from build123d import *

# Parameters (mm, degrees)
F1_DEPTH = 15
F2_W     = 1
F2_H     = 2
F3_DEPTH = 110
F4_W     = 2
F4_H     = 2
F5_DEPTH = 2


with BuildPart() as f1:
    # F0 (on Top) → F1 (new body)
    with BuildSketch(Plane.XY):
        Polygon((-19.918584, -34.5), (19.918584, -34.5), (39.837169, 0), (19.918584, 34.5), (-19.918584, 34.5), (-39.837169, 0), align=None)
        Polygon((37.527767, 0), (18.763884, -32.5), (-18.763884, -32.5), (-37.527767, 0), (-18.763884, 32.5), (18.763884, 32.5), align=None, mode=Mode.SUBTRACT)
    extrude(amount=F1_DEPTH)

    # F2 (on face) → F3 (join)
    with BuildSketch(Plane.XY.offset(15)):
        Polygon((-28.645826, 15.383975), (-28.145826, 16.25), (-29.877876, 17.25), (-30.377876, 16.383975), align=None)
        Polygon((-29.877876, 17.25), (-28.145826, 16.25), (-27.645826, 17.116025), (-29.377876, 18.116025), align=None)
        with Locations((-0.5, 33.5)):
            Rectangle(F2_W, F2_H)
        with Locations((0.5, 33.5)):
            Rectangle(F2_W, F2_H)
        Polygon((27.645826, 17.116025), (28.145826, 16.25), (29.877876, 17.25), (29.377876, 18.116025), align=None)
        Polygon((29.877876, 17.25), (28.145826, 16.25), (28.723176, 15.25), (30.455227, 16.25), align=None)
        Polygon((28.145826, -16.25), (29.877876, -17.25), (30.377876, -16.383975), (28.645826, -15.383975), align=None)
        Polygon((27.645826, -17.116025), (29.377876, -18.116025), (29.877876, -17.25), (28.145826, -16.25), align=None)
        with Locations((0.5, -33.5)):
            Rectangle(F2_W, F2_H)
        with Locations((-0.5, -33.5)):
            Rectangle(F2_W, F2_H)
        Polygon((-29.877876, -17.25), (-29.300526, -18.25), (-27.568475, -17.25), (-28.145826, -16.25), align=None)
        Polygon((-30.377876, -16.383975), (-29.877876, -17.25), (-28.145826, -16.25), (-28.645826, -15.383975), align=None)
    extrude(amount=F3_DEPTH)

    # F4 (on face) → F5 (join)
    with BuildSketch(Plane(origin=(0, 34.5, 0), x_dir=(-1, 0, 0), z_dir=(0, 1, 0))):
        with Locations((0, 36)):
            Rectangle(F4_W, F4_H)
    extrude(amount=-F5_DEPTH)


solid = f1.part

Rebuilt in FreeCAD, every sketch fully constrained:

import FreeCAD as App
import Part
import Sketcher
from FreeCAD import Vector
Q = App.Units.Quantity

doc = App.newDocument("Part")
body = doc.addObject("PartDesign::Body", "Body")

sketch1 = body.newObject("Sketcher::SketchObject", "Sketch")
sketch1.AttachmentSupport = (doc.getObject("XY_Plane"), [""])
sketch1.MapMode = "FlatFace"
sketch1.addGeometry(Part.LineSegment(Vector(-19.918584, -34.5, 0), Vector(19.918584, -34.5, 0)), False)
sketch1.addGeometry(Part.LineSegment(Vector(19.918584, -34.5, 0), Vector(39.837169, 0, 0)), False)
sketch1.addGeometry(Part.LineSegment(Vector(39.837169, 0, 0), Vector(19.918584, 34.5, 0)), False)
sketch1.addGeometry(Part.LineSegment(Vector(19.918584, 34.5, 0), Vector(-19.918584, 34.5, 0)), False)
sketch1.addGeometry(Part.LineSegment(Vector(-19.918584, 34.5, 0), Vector(-39.837169, 0, 0)), False)
sketch1.addGeometry(Part.LineSegment(Vector(-39.837169, 0, 0), Vector(-19.918584, -34.5, 0)), False)
sketch1.addGeometry(Part.LineSegment(Vector(18.763884, 32.5, 0), Vector(37.527767, 0, 0)), False)
sketch1.addGeometry(Part.LineSegment(Vector(37.527767, 0, 0), Vector(18.763884, -32.5, 0)), False)
sketch1.addGeometry(Part.LineSegment(Vector(18.763884, -32.5, 0), Vector(-18.763884, -32.5, 0)), False)
sketch1.addGeometry(Part.LineSegment(Vector(-18.763884, -32.5, 0), Vector(-37.527767, 0, 0)), False)
sketch1.addGeometry(Part.LineSegment(Vector(-37.527767, 0, 0), Vector(-18.763884, 32.5, 0)), False)
sketch1.addGeometry(Part.LineSegment(Vector(-18.763884, 32.5, 0), Vector(18.763884, 32.5, 0)), False)
sketch1.addConstraint(Sketcher.Constraint("Coincident", 0, 2, 1, 1))
sketch1.addConstraint(Sketcher.Constraint("Coincident", 1, 2, 2, 1))
sketch1.addConstraint(Sketcher.Constraint("Coincident", 2, 2, 3, 1))
sketch1.addConstraint(Sketcher.Constraint("Coincident", 3, 2, 4, 1))
sketch1.addConstraint(Sketcher.Constraint("Coincident", 4, 2, 5, 1))
sketch1.addConstraint(Sketcher.Constraint("Coincident", 5, 2, 0, 1))
sketch1.addConstraint(Sketcher.Constraint("Coincident", 6, 2, 7, 1))
sketch1.addConstraint(Sketcher.Constraint("Coincident", 7, 2, 8, 1))
sketch1.addConstraint(Sketcher.Constraint("Coincident", 8, 2, 9, 1))
sketch1.addConstraint(Sketcher.Constraint("Coincident", 9, 2, 10, 1))
sketch1.addConstraint(Sketcher.Constraint("Coincident", 10, 2, 11, 1))
sketch1.addConstraint(Sketcher.Constraint("Coincident", 11, 2, 6, 1))
sketch1.addConstraint(Sketcher.Constraint("Horizontal", 0))
sketch1.addConstraint(Sketcher.Constraint("Horizontal", 3))
sketch1.addConstraint(Sketcher.Constraint("Horizontal", 8))
sketch1.addConstraint(Sketcher.Constraint("Horizontal", 11))
sketch1.addConstraint(Sketcher.Constraint("Symmetric", 0, 2, 3, 2, -1, 1))
sketch1.addConstraint(Sketcher.Constraint("Symmetric", 1, 2, 4, 2, -1, 1))
sketch1.addConstraint(Sketcher.Constraint("Symmetric", 6, 2, 9, 2, -1, 1))
sketch1.addConstraint(Sketcher.Constraint("Symmetric", 7, 2, 10, 2, -1, 1))
sketch1.addConstraint(Sketcher.Constraint("PointOnObject", 1, 2, -1))
sketch1.addConstraint(Sketcher.Constraint("PointOnObject", 6, 2, -1))
sketch1.addConstraint(Sketcher.Constraint("Parallel", 2, 5))
sketch1.addConstraint(Sketcher.Constraint("Parallel", 5, 6))
sketch1.addConstraint(Sketcher.Constraint("Parallel", 4, 7))
sketch1.addConstraint(Sketcher.Constraint("Parallel", 6, 9))
sketch1.addConstraint(Sketcher.Constraint("Vertical", 0, 2, 2, 2))
sketch1.addConstraint(Sketcher.Constraint("Angle", 1, Q("59.999999 deg")))
sketch1.addConstraint(Sketcher.Constraint("DistanceY", 0, 2, 2, 2, 69.0))
sketch1.addConstraint(Sketcher.Constraint("DistanceY", 0, 2, 7, 2, 2.0))
sketch1.addConstraint(Sketcher.Constraint("DistanceX", 8, 2, 8, 1, 37.527768))
sketch1.addConstraint(Sketcher.Constraint("DistanceX", 7, 2, 0, 2, 1.1547))
pad1 = body.newObject("PartDesign::Pad", "Pad")
pad1.Profile = sketch1
pad1.Length = 15

sketch2 = body.newObject("Sketcher::SketchObject", "Sketch001")
sketch2.AttachmentSupport = (doc.getObject("XY_Plane"), [""])
sketch2.MapMode = "FlatFace"
sketch2.AttachmentOffset = App.Placement(Vector(0, 0, 15), App.Rotation())
sketch2.addGeometry(Part.LineSegment(Vector(-28.645826, 15.383975, 0), Vector(-27.645826, 17.116025, 0)), False)
sketch2.addGeometry(Part.LineSegment(Vector(-27.645826, 17.116025, 0), Vector(-29.377876, 18.116025, 0)), False)
sketch2.addGeometry(Part.LineSegment(Vector(-29.377876, 18.116025, 0), Vector(-30.377876, 16.383975, 0)), False)
sketch2.addGeometry(Part.LineSegment(Vector(-30.377876, 16.383975, 0), Vector(-28.645826, 15.383975, 0)), False)
sketch2.addGeometry(Part.LineSegment(Vector(-1, 34.5, 0), Vector(-1, 32.5, 0)), False)
sketch2.addGeometry(Part.LineSegment(Vector(-1, 32.5, 0), Vector(1, 32.5, 0)), False)
sketch2.addGeometry(Part.LineSegment(Vector(1, 32.5, 0), Vector(1, 34.5, 0)), False)
sketch2.addGeometry(Part.LineSegment(Vector(1, 34.5, 0), Vector(-1, 34.5, 0)), False)
sketch2.addGeometry(Part.LineSegment(Vector(27.645826, 17.116025, 0), Vector(28.145826, 16.25, 0)), False)
sketch2.addGeometry(Part.LineSegment(Vector(28.145826, 16.25, 0), Vector(28.723176, 15.25, 0)), False)
sketch2.addGeometry(Part.LineSegment(Vector(28.723176, 15.25, 0), Vector(30.455227, 16.25, 0)), False)
sketch2.addGeometry(Part.LineSegment(Vector(30.455227, 16.25, 0), Vector(29.877876, 17.25, 0)), False)
sketch2.addGeometry(Part.LineSegment(Vector(29.877876, 17.25, 0), Vector(29.377876, 18.116025, 0)), False)
sketch2.addGeometry(Part.LineSegment(Vector(29.377876, 18.116025, 0), Vector(27.645826, 17.116025, 0)), False)
sketch2.addGeometry(Part.LineSegment(Vector(30.377876, -16.383975, 0), Vector(28.645826, -15.383975, 0)), False)
sketch2.addGeometry(Part.LineSegment(Vector(28.645826, -15.383975, 0), Vector(27.645826, -17.116025, 0)), False)
sketch2.addGeometry(Part.LineSegment(Vector(27.645826, -17.116025, 0), Vector(29.377876, -18.116025, 0)), False)
sketch2.addGeometry(Part.LineSegment(Vector(29.377876, -18.116025, 0), Vector(30.377876, -16.383975, 0)), False)
sketch2.addGeometry(Part.LineSegment(Vector(1, -34.5, 0), Vector(1, -32.5, 0)), False)
sketch2.addGeometry(Part.LineSegment(Vector(1, -32.5, 0), Vector(-1, -32.5, 0)), False)
sketch2.addGeometry(Part.LineSegment(Vector(-1, -32.5, 0), Vector(-1, -34.5, 0)), False)
sketch2.addGeometry(Part.LineSegment(Vector(-1, -34.5, 0), Vector(1, -34.5, 0)), False)
sketch2.addGeometry(Part.LineSegment(Vector(-29.877876, -17.25, 0), Vector(-29.300526, -18.25, 0)), False)
sketch2.addGeometry(Part.LineSegment(Vector(-29.300526, -18.25, 0), Vector(-27.568475, -17.25, 0)), False)
sketch2.addGeometry(Part.LineSegment(Vector(-27.568475, -17.25, 0), Vector(-28.145826, -16.25, 0)), False)
sketch2.addGeometry(Part.LineSegment(Vector(-28.145826, -16.25, 0), Vector(-28.645826, -15.383975, 0)), False)
sketch2.addGeometry(Part.LineSegment(Vector(-28.645826, -15.383975, 0), Vector(-30.377876, -16.383975, 0)), False)
sketch2.addGeometry(Part.LineSegment(Vector(-30.377876, -16.383975, 0), Vector(-29.877876, -17.25, 0)), False)
sketch2.addConstraint(Sketcher.Constraint("Coincident", 0, 2, 1, 1))
sketch2.addConstraint(Sketcher.Constraint("Coincident", 1, 2, 2, 1))
sketch2.addConstraint(Sketcher.Constraint("Coincident", 2, 2, 3, 1))
sketch2.addConstraint(Sketcher.Constraint("Coincident", 3, 2, 0, 1))
sketch2.addConstraint(Sketcher.Constraint("Coincident", 4, 2, 5, 1))
sketch2.addConstraint(Sketcher.Constraint("Coincident", 5, 2, 6, 1))
sketch2.addConstraint(Sketcher.Constraint("Coincident", 6, 2, 7, 1))
sketch2.addConstraint(Sketcher.Constraint("Coincident", 7, 2, 4, 1))
sketch2.addConstraint(Sketcher.Constraint("Coincident", 8, 2, 9, 1))
sketch2.addConstraint(Sketcher.Constraint("Coincident", 9, 2, 10, 1))
sketch2.addConstraint(Sketcher.Constraint("Coincident", 10, 2, 11, 1))
sketch2.addConstraint(Sketcher.Constraint("Coincident", 11, 2, 12, 1))
sketch2.addConstraint(Sketcher.Constraint("Coincident", 12, 2, 13, 1))
sketch2.addConstraint(Sketcher.Constraint("Coincident", 13, 2, 8, 1))
sketch2.addConstraint(Sketcher.Constraint("Coincident", 14, 2, 15, 1))
sketch2.addConstraint(Sketcher.Constraint("Coincident", 15, 2, 16, 1))
sketch2.addConstraint(Sketcher.Constraint("Coincident", 16, 2, 17, 1))
sketch2.addConstraint(Sketcher.Constraint("Coincident", 17, 2, 14, 1))
sketch2.addConstraint(Sketcher.Constraint("Coincident", 18, 2, 19, 1))
sketch2.addConstraint(Sketcher.Constraint("Coincident", 19, 2, 20, 1))
sketch2.addConstraint(Sketcher.Constraint("Coincident", 20, 2, 21, 1))
sketch2.addConstraint(Sketcher.Constraint("Coincident", 21, 2, 18, 1))
sketch2.addConstraint(Sketcher.Constraint("Coincident", 22, 2, 23, 1))
sketch2.addConstraint(Sketcher.Constraint("Coincident", 23, 2, 24, 1))
sketch2.addConstraint(Sketcher.Constraint("Coincident", 24, 2, 25, 1))
sketch2.addConstraint(Sketcher.Constraint("Coincident", 25, 2, 26, 1))
sketch2.addConstraint(Sketcher.Constraint("Coincident", 26, 2, 27, 1))
sketch2.addConstraint(Sketcher.Constraint("Coincident", 27, 2, 22, 1))
sketch2.addConstraint(Sketcher.Constraint("Vertical", 4))
sketch2.addConstraint(Sketcher.Constraint("Horizontal", 5))
sketch2.addConstraint(Sketcher.Constraint("Vertical", 6))
sketch2.addConstraint(Sketcher.Constraint("Horizontal", 7))
sketch2.addConstraint(Sketcher.Constraint("Vertical", 18))
sketch2.addConstraint(Sketcher.Constraint("Horizontal", 19))
sketch2.addConstraint(Sketcher.Constraint("Vertical", 20))
sketch2.addConstraint(Sketcher.Constraint("Horizontal", 21))
sketch2.addConstraint(Sketcher.Constraint("Symmetric", 3, 2, 14, 2, -1, 1))
sketch2.addConstraint(Sketcher.Constraint("Symmetric", 0, 2, 15, 2, -1, 1))
sketch2.addConstraint(Sketcher.Constraint("Symmetric", 1, 2, 16, 2, -1, 1))
sketch2.addConstraint(Sketcher.Constraint("Symmetric", 2, 2, 17, 2, -1, 1))
sketch2.addConstraint(Sketcher.Constraint("Symmetric", 4, 2, 18, 2, -1, 1))
sketch2.addConstraint(Sketcher.Constraint("Symmetric", 6, 2, 20, 2, -1, 1))
sketch2.addConstraint(Sketcher.Constraint("Symmetric", 8, 2, 24, 2, -1, 1))
sketch2.addConstraint(Sketcher.Constraint("Symmetric", 11, 2, 27, 2, -1, 1))
sketch2.addConstraint(Sketcher.Constraint("Symmetric", 1, 2, 12, 2, -2))
sketch2.addConstraint(Sketcher.Constraint("Symmetric", 0, 2, 13, 2, -2))
sketch2.addConstraint(Sketcher.Constraint("Symmetric", 14, 2, 25, 2, -2))
sketch2.addConstraint(Sketcher.Constraint("Symmetric", 17, 2, 26, 2, -2))
sketch2.addConstraint(Sketcher.Constraint("Perpendicular", 0, 1))
sketch2.addConstraint(Sketcher.Constraint("Perpendicular", 1, 2))
sketch2.addConstraint(Sketcher.Constraint("Perpendicular", 2, 3))
sketch2.addConstraint(Sketcher.Constraint("Parallel", 8, 9))
sketch2.addConstraint(Sketcher.Constraint("Perpendicular", 9, 10))
sketch2.addConstraint(Sketcher.Constraint("Perpendicular", 10, 11))
sketch2.addConstraint(Sketcher.Constraint("Parallel", 11, 12))
sketch2.addConstraint(Sketcher.Constraint("Perpendicular", 12, 13))
sketch2.addConstraint(Sketcher.Constraint("Perpendicular", 13, 22))
sketch2.addConstraint(Sketcher.Constraint("Perpendicular", 22, 23))
sketch2.addConstraint(Sketcher.Constraint("Perpendicular", 23, 24))
sketch2.addConstraint(Sketcher.Constraint("Horizontal", 8, 2, 10, 2))
sketch2.addConstraint(Sketcher.Constraint("Horizontal", 23, 2, 27, 2))
sketch2.addConstraint(Sketcher.Constraint("Vertical", 6, 2, 18, 2))
sketch2.addConstraint(Sketcher.Constraint("Equal", 21, 4))
sketch2.addConstraint(Sketcher.Constraint("Equal", 0, 1))
sketch2.addConstraint(Sketcher.Constraint("Equal", 9, 11))
sketch2.addConstraint(Sketcher.Constraint("Equal", 12, 25))
sketch2.addConstraint(Sketcher.Constraint("DistanceX", 5, 1, 5, 2, 2.0))
sketch2.addConstraint(Sketcher.Constraint("Angle", 0, Q("59.999988 deg")))
sketch2.addConstraint(Sketcher.Constraint("Distance", 0, 1.999999))
sketch2.addConstraint(Sketcher.Constraint("DistanceY", -1, 1, 4, 2, 32.5))
sketch2.addConstraint(Sketcher.Constraint("DistanceY", 14, 2, 13, 2, 32.5))
sketch2.addConstraint(Sketcher.Constraint("DistanceX", 0, 2, -1, 1, 27.645826))
pad2 = body.newObject("PartDesign::Pad", "Pad001")
pad2.Profile = sketch2
pad2.Length = 110

sketch3 = body.newObject("Sketcher::SketchObject", "Sketch002")
sketch3.AttachmentSupport = (doc.getObject("XZ_Plane"), [""])
sketch3.MapMode = "FlatFace"
sketch3.AttachmentOffset = App.Placement(Vector(0, 0, -34.5), App.Rotation())
sketch3.addGeometry(Part.LineSegment(Vector(1, 37, 0), Vector(1, 35, 0)), False)
sketch3.addGeometry(Part.LineSegment(Vector(1, 35, 0), Vector(-1, 35, 0)), False)
sketch3.addGeometry(Part.LineSegment(Vector(-1, 35, 0), Vector(-1, 37, 0)), False)
sketch3.addGeometry(Part.LineSegment(Vector(-1, 37, 0), Vector(1, 37, 0)), False)
sketch3.addConstraint(Sketcher.Constraint("Coincident", 0, 2, 1, 1))
sketch3.addConstraint(Sketcher.Constraint("Coincident", 1, 2, 2, 1))
sketch3.addConstraint(Sketcher.Constraint("Coincident", 2, 2, 3, 1))
sketch3.addConstraint(Sketcher.Constraint("Coincident", 3, 2, 0, 1))
sketch3.addConstraint(Sketcher.Constraint("Vertical", 0))
sketch3.addConstraint(Sketcher.Constraint("Horizontal", 1))
sketch3.addConstraint(Sketcher.Constraint("Vertical", 2))
sketch3.addConstraint(Sketcher.Constraint("Horizontal", 3))
sketch3.addConstraint(Sketcher.Constraint("Equal", 3, 0))
sketch3.addConstraint(Sketcher.Constraint("DistanceX", 1, 2, 1, 1, 2.0))
sketch3.addConstraint(Sketcher.Constraint("DistanceX", -1, 1, 0, 2, 1.0))
sketch3.addConstraint(Sketcher.Constraint("DistanceY", -1, 1, 0, 2, 35.0))
pad3 = body.newObject("PartDesign::Pad", "Pad002")
pad3.Profile = sketch3
pad3.Length = 2

doc.recompute()
